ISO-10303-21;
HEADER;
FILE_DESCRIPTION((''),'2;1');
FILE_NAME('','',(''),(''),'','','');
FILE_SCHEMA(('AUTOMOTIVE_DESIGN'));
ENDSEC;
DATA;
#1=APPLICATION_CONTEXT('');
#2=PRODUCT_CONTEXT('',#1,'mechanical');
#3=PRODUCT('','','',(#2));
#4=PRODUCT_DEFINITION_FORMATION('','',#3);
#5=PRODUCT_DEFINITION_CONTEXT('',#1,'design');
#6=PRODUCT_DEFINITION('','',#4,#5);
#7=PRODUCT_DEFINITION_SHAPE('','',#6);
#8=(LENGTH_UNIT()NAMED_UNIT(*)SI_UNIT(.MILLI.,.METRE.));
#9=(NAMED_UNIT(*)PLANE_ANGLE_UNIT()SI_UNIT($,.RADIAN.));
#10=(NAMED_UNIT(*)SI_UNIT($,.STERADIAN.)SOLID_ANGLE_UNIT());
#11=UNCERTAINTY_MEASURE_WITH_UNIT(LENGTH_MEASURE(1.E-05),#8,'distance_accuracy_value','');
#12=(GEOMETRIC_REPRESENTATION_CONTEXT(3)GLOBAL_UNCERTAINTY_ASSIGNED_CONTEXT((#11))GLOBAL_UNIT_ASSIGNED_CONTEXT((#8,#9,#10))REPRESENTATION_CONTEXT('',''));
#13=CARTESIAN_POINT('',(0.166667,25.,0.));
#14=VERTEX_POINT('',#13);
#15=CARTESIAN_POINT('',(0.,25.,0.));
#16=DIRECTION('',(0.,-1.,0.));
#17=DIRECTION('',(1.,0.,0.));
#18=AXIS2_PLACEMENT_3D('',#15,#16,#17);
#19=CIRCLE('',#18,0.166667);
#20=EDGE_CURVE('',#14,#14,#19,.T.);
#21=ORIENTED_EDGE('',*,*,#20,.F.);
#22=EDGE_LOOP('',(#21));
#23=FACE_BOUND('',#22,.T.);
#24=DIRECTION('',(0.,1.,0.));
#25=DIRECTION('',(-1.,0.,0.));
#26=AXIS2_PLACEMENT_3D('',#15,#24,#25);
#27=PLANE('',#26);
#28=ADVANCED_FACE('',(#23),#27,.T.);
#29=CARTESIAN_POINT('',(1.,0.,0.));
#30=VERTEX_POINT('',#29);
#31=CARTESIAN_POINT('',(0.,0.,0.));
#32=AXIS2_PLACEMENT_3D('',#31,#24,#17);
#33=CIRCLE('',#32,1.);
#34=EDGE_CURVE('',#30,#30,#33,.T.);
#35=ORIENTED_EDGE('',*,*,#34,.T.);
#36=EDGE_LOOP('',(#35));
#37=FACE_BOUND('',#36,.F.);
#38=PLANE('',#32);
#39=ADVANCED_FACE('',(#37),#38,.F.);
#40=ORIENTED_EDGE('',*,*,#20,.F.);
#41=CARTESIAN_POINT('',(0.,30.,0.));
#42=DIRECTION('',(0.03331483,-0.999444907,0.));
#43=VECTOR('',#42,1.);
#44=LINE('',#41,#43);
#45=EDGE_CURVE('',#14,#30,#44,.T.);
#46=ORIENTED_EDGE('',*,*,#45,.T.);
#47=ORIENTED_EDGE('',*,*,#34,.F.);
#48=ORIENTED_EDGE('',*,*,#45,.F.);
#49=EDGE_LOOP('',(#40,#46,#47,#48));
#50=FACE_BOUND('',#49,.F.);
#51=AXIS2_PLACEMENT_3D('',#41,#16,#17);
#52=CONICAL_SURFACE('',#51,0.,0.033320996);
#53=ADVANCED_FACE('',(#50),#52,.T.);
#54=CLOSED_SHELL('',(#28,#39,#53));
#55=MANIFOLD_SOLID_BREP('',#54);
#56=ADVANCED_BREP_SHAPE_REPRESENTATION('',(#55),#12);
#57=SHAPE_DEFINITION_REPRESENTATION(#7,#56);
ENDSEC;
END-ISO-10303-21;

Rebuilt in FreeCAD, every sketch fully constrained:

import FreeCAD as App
import Part
import Sketcher
from FreeCAD import Vector
Q = App.Units.Quantity

doc = App.newDocument("Part")
body = doc.addObject("PartDesign::Body", "Body")

# Sketch on XY plane
sketch1 = body.newObject("Sketcher::SketchObject", "Sketch")
sketch1.AttachmentSupport = (doc.getObject("XY_Plane"), [""])
sketch1.MapMode = "FlatFace"
sketch1.addGeometry(Part.LineSegment(Vector(0, 30, 0), Vector(0, 0, 0)), False)
sketch1.addGeometry(Part.LineSegment(Vector(0, 0, 0), Vector(1, 0, 0)), False)
sketch1.addGeometry(Part.LineSegment(Vector(1, 0, 0), Vector(0, 30, 0)), False)
sketch1.addConstraint(Sketcher.Constraint("Coincident", 0, 2, 1, 1))
sketch1.addConstraint(Sketcher.Constraint("Coincident", 1, 2, 2, 1))
sketch1.addConstraint(Sketcher.Constraint("Coincident", 2, 2, 0, 1))
sketch1.addConstraint(Sketcher.Constraint("Vertical", 0))
sketch1.addConstraint(Sketcher.Constraint("Horizontal", 1))
sketch1.addConstraint(Sketcher.Constraint("Coincident", 0, 2, -1, 1))
sketch1.addConstraint(Sketcher.Constraint("DistanceX", 1, 1, 1, 2, Q("1 mm")))
sketch1.addConstraint(Sketcher.Constraint("DistanceY", 0, 2, 0, 1, Q("30 mm")))
revolution = body.newObject("PartDesign::Revolution", "Revolution")
revolution.Profile = sketch1
revolution.ReferenceAxis = (sketch1, ["V_Axis"])
revolution.Angle = 360

# Sketch on XZ plane
sketch2 = body.newObject("Sketcher::SketchObject", "Sketch001")
sketch2.AttachmentSupport = (doc.getObject("XZ_Plane"), [""])
sketch2.MapMode = "FlatFace"
sketch2.AttachmentOffset = App.Placement(Vector(0, 0, -30), App.Rotation())
sketch2.addGeometry(Part.Circle(Vector(0, 0, 0), Vector(0, 0, 1), 2.8), False)
sketch2.addConstraint(Sketcher.Constraint("Coincident", 0, 3, -1, 1))
sketch2.addConstraint(Sketcher.Constraint("Diameter", 0, Q("5.622 mm")))
pocket1 = body.newObject("PartDesign::Pocket", "Pocket")
pocket1.Profile = sketch2
pocket1.Length = 5
pocket1.Reversed = True

doc.recompute()
